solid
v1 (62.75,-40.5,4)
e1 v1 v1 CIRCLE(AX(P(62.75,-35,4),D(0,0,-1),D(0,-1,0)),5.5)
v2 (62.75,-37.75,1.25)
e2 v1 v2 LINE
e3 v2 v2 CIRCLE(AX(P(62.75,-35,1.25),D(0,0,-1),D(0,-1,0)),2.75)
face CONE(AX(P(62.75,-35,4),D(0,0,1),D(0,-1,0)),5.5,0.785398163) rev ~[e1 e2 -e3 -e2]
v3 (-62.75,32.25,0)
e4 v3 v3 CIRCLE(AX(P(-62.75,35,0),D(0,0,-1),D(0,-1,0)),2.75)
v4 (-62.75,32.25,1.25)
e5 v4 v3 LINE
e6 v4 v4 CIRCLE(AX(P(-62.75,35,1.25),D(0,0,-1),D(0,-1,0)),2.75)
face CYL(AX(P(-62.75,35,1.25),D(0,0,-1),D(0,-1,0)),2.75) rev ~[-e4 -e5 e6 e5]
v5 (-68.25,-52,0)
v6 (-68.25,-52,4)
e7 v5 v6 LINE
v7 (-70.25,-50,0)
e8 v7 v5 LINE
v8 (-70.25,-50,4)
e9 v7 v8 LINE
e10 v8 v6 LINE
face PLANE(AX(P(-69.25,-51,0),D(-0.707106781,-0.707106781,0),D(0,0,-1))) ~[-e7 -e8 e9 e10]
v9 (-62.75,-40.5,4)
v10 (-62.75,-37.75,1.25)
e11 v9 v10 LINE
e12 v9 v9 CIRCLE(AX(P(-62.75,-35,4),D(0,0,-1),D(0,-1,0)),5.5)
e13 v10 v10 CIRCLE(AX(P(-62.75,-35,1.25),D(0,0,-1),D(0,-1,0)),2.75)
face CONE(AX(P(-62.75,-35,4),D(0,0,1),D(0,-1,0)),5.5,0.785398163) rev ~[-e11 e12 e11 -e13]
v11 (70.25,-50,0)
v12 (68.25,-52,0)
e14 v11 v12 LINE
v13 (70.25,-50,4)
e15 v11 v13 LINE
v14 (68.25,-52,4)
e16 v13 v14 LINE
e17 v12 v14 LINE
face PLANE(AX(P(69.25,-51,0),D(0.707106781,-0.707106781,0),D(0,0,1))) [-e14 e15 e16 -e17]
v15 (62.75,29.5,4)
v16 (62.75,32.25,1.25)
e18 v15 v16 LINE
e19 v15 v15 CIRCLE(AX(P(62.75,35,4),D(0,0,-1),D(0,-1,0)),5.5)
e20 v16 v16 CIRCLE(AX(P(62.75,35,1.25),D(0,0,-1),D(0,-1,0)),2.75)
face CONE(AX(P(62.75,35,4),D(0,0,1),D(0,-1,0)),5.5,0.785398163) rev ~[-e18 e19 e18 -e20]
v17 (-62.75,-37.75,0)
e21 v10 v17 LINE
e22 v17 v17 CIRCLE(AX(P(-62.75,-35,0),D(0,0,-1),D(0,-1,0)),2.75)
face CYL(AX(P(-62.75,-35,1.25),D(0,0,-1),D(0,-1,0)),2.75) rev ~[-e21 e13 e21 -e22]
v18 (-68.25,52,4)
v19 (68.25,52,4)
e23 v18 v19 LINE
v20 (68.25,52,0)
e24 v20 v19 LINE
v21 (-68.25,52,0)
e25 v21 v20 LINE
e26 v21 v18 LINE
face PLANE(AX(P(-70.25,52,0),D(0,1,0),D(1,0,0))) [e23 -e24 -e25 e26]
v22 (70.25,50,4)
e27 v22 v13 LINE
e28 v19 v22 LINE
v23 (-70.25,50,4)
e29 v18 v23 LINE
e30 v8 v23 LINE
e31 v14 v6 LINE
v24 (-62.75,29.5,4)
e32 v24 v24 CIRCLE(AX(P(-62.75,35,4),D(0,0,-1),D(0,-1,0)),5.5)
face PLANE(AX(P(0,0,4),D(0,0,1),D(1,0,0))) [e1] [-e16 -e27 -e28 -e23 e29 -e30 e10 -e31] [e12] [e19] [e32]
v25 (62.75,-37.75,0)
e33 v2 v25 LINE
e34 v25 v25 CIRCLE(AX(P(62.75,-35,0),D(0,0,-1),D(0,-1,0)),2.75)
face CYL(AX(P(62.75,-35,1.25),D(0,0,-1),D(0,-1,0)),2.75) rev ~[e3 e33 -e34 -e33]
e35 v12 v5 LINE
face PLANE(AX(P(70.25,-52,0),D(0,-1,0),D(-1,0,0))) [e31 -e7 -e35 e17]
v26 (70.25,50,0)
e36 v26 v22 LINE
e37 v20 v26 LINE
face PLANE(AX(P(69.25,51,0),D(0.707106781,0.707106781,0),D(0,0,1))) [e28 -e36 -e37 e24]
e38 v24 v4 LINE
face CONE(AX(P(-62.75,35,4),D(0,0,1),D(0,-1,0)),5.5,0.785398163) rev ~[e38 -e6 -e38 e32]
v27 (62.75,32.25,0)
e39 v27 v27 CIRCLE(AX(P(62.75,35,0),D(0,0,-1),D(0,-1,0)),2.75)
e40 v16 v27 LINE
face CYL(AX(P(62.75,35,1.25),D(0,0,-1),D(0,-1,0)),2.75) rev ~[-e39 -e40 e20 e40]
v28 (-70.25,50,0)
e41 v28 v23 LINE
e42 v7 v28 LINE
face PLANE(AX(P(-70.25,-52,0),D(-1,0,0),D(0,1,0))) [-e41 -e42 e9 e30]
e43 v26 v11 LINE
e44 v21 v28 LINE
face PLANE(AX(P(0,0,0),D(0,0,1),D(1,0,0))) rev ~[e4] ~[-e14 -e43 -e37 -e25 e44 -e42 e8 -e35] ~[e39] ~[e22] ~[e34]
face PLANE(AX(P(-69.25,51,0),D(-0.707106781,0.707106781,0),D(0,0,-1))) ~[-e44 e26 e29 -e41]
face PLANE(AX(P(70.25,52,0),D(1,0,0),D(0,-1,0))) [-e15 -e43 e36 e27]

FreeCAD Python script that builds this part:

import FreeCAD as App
import Part
import Sketcher
from FreeCAD import Vector
Q = App.Units.Quantity


def edges_at(feature, points):
    """Names of the edges that pass closest to the given points."""
    edges = feature.Shape.Edges
    near = lambda p: min(range(len(edges)), key=lambda i: edges[i].distToShape(Part.Vertex(*p))[0])
    return sorted({f"Edge{near(p) + 1}" for p in points})

doc = App.newDocument("Part")
params = doc.addObject("Spreadsheet::Sheet", "Params")
for row, (alias, value) in enumerate([
    ("sketch1_height", "104 mm"),
    ("sketch1_width", "140.5 mm"),
    ("pad1_length", "4 mm"),
    ("sketch2_diameter", "5.5 mm"),
    ("hole_diameter", "5.5 mm"),
    ("hole_csink_diameter", "11 mm"),
    ("chamfer_size", "2 mm"),
], start=1):
    params.set(f"A{row}", alias)
    params.set(f"B{row}", "=" + value)
    params.setAlias(f"B{row}", alias)

body = doc.addObject("PartDesign::Body", "Body")

sketch1 = body.newObject("Sketcher::SketchObject", "Sketch")
sketch1.AttachmentSupport = (doc.getObject("XY_Plane"), [""])
sketch1.MapMode = "FlatFace"
sketch1.addGeometry([
    Part.LineSegment(Vector(70.25, 52, 0), Vector(-70.25, 52, 0)),
    Part.LineSegment(Vector(-70.25, 52, 0), Vector(-70.25, -52, 0)),
    Part.LineSegment(Vector(-70.25, -52, 0), Vector(70.25, -52, 0)),
    Part.LineSegment(Vector(70.25, -52, 0), Vector(70.25, 52, 0)),
], False)
sketch1.addConstraint([
    Sketcher.Constraint("Coincident", 0, 2, 1, 1),
    Sketcher.Constraint("Coincident", 1, 2, 2, 1),
    Sketcher.Constraint("Coincident", 2, 2, 3, 1),
    Sketcher.Constraint("Coincident", 3, 2, 0, 1),
    Sketcher.Constraint("Horizontal", 0),
    Sketcher.Constraint("Vertical", 1),
    Sketcher.Constraint("Horizontal", 2),
    Sketcher.Constraint("Vertical", 3),
    Sketcher.Constraint("Symmetric", 0, 2, 2, 2, -1, 1),
    Sketcher.Constraint("DistanceY", 1, 2, 1, 1, Q("104 mm")),
    Sketcher.Constraint("DistanceX", 0, 2, 0, 1, Q("140.5 mm")),
])
sketch1.setExpression("Constraints[9]", "Params.sketch1_height")
sketch1.setExpression("Constraints[10]", "Params.sketch1_width")
pad1 = body.newObject("PartDesign::Pad", "Pad")
pad1.Profile = sketch1
pad1.setExpression("Length", "Params.pad1_length")

sketch2 = body.newObject("Sketcher::SketchObject", "Sketch001")
sketch2.AttachmentSupport = (doc.getObject("XY_Plane"), [""])
sketch2.MapMode = "FlatFace"
sketch2.AttachmentOffset = App.Placement(Vector(0, 0, 4), App.Rotation())
sketch2.addGeometry([
    Part.Circle(Vector(-62.75, 35, 0), Vector(0, 0, 1), 2.75),
    Part.Circle(Vector(62.75, 35, 0), Vector(0, 0, 1), 2.75),
    Part.Circle(Vector(62.75, -35, 0), Vector(0, 0, 1), 2.75),
    Part.Circle(Vector(-62.75, -35, 0), Vector(0, 0, 1), 2.75),
], False)
sketch2.addConstraint([
    Sketcher.Constraint("Equal", 0, 1),
    Sketcher.Constraint("Equal", 1, 2),
    Sketcher.Constraint("Equal", 2, 3),
    Sketcher.Constraint("Symmetric", 0, 3, 2, 3, -1, 1),
    Sketcher.Constraint("Symmetric", 1, 3, 3, 3, -1, 1),
    Sketcher.Constraint("Symmetric", 0, 3, 1, 3, -2),
    Sketcher.Constraint("Diameter", 0, Q("5.5 mm")),
    Sketcher.Constraint("DistanceY", -1, 1, 0, 3, Q("35 mm")),
    Sketcher.Constraint("DistanceX", 0, 3, 1, 3, Q("125.5 mm")),
])
sketch2.setExpression("Constraints[6]", "Params.sketch2_diameter")
doc.recompute()
hole = body.newObject("PartDesign::Hole", "Hole")
hole.Profile = sketch2
hole.ThreadType = "None"
hole.setExpression("Diameter", "Params.hole_diameter")
hole.DepthType = "ThroughAll"
hole.HoleCutType = "Countersink"
hole.setExpression("HoleCutDiameter", "Params.hole_csink_diameter")
hole.HoleCutCountersinkAngle = 90
doc.recompute()

chamfer = body.newObject("PartDesign::Chamfer", "Chamfer")
chamfer.Base = (hole, edges_at(hole, [
    (70.25, -52, 2),
    (70.25, 52, 2),
    (-70.25, 52, 2),
    (-70.25, -52, 2),
]))
chamfer.setExpression("Size", "Params.chamfer_size")

doc.recompute()
